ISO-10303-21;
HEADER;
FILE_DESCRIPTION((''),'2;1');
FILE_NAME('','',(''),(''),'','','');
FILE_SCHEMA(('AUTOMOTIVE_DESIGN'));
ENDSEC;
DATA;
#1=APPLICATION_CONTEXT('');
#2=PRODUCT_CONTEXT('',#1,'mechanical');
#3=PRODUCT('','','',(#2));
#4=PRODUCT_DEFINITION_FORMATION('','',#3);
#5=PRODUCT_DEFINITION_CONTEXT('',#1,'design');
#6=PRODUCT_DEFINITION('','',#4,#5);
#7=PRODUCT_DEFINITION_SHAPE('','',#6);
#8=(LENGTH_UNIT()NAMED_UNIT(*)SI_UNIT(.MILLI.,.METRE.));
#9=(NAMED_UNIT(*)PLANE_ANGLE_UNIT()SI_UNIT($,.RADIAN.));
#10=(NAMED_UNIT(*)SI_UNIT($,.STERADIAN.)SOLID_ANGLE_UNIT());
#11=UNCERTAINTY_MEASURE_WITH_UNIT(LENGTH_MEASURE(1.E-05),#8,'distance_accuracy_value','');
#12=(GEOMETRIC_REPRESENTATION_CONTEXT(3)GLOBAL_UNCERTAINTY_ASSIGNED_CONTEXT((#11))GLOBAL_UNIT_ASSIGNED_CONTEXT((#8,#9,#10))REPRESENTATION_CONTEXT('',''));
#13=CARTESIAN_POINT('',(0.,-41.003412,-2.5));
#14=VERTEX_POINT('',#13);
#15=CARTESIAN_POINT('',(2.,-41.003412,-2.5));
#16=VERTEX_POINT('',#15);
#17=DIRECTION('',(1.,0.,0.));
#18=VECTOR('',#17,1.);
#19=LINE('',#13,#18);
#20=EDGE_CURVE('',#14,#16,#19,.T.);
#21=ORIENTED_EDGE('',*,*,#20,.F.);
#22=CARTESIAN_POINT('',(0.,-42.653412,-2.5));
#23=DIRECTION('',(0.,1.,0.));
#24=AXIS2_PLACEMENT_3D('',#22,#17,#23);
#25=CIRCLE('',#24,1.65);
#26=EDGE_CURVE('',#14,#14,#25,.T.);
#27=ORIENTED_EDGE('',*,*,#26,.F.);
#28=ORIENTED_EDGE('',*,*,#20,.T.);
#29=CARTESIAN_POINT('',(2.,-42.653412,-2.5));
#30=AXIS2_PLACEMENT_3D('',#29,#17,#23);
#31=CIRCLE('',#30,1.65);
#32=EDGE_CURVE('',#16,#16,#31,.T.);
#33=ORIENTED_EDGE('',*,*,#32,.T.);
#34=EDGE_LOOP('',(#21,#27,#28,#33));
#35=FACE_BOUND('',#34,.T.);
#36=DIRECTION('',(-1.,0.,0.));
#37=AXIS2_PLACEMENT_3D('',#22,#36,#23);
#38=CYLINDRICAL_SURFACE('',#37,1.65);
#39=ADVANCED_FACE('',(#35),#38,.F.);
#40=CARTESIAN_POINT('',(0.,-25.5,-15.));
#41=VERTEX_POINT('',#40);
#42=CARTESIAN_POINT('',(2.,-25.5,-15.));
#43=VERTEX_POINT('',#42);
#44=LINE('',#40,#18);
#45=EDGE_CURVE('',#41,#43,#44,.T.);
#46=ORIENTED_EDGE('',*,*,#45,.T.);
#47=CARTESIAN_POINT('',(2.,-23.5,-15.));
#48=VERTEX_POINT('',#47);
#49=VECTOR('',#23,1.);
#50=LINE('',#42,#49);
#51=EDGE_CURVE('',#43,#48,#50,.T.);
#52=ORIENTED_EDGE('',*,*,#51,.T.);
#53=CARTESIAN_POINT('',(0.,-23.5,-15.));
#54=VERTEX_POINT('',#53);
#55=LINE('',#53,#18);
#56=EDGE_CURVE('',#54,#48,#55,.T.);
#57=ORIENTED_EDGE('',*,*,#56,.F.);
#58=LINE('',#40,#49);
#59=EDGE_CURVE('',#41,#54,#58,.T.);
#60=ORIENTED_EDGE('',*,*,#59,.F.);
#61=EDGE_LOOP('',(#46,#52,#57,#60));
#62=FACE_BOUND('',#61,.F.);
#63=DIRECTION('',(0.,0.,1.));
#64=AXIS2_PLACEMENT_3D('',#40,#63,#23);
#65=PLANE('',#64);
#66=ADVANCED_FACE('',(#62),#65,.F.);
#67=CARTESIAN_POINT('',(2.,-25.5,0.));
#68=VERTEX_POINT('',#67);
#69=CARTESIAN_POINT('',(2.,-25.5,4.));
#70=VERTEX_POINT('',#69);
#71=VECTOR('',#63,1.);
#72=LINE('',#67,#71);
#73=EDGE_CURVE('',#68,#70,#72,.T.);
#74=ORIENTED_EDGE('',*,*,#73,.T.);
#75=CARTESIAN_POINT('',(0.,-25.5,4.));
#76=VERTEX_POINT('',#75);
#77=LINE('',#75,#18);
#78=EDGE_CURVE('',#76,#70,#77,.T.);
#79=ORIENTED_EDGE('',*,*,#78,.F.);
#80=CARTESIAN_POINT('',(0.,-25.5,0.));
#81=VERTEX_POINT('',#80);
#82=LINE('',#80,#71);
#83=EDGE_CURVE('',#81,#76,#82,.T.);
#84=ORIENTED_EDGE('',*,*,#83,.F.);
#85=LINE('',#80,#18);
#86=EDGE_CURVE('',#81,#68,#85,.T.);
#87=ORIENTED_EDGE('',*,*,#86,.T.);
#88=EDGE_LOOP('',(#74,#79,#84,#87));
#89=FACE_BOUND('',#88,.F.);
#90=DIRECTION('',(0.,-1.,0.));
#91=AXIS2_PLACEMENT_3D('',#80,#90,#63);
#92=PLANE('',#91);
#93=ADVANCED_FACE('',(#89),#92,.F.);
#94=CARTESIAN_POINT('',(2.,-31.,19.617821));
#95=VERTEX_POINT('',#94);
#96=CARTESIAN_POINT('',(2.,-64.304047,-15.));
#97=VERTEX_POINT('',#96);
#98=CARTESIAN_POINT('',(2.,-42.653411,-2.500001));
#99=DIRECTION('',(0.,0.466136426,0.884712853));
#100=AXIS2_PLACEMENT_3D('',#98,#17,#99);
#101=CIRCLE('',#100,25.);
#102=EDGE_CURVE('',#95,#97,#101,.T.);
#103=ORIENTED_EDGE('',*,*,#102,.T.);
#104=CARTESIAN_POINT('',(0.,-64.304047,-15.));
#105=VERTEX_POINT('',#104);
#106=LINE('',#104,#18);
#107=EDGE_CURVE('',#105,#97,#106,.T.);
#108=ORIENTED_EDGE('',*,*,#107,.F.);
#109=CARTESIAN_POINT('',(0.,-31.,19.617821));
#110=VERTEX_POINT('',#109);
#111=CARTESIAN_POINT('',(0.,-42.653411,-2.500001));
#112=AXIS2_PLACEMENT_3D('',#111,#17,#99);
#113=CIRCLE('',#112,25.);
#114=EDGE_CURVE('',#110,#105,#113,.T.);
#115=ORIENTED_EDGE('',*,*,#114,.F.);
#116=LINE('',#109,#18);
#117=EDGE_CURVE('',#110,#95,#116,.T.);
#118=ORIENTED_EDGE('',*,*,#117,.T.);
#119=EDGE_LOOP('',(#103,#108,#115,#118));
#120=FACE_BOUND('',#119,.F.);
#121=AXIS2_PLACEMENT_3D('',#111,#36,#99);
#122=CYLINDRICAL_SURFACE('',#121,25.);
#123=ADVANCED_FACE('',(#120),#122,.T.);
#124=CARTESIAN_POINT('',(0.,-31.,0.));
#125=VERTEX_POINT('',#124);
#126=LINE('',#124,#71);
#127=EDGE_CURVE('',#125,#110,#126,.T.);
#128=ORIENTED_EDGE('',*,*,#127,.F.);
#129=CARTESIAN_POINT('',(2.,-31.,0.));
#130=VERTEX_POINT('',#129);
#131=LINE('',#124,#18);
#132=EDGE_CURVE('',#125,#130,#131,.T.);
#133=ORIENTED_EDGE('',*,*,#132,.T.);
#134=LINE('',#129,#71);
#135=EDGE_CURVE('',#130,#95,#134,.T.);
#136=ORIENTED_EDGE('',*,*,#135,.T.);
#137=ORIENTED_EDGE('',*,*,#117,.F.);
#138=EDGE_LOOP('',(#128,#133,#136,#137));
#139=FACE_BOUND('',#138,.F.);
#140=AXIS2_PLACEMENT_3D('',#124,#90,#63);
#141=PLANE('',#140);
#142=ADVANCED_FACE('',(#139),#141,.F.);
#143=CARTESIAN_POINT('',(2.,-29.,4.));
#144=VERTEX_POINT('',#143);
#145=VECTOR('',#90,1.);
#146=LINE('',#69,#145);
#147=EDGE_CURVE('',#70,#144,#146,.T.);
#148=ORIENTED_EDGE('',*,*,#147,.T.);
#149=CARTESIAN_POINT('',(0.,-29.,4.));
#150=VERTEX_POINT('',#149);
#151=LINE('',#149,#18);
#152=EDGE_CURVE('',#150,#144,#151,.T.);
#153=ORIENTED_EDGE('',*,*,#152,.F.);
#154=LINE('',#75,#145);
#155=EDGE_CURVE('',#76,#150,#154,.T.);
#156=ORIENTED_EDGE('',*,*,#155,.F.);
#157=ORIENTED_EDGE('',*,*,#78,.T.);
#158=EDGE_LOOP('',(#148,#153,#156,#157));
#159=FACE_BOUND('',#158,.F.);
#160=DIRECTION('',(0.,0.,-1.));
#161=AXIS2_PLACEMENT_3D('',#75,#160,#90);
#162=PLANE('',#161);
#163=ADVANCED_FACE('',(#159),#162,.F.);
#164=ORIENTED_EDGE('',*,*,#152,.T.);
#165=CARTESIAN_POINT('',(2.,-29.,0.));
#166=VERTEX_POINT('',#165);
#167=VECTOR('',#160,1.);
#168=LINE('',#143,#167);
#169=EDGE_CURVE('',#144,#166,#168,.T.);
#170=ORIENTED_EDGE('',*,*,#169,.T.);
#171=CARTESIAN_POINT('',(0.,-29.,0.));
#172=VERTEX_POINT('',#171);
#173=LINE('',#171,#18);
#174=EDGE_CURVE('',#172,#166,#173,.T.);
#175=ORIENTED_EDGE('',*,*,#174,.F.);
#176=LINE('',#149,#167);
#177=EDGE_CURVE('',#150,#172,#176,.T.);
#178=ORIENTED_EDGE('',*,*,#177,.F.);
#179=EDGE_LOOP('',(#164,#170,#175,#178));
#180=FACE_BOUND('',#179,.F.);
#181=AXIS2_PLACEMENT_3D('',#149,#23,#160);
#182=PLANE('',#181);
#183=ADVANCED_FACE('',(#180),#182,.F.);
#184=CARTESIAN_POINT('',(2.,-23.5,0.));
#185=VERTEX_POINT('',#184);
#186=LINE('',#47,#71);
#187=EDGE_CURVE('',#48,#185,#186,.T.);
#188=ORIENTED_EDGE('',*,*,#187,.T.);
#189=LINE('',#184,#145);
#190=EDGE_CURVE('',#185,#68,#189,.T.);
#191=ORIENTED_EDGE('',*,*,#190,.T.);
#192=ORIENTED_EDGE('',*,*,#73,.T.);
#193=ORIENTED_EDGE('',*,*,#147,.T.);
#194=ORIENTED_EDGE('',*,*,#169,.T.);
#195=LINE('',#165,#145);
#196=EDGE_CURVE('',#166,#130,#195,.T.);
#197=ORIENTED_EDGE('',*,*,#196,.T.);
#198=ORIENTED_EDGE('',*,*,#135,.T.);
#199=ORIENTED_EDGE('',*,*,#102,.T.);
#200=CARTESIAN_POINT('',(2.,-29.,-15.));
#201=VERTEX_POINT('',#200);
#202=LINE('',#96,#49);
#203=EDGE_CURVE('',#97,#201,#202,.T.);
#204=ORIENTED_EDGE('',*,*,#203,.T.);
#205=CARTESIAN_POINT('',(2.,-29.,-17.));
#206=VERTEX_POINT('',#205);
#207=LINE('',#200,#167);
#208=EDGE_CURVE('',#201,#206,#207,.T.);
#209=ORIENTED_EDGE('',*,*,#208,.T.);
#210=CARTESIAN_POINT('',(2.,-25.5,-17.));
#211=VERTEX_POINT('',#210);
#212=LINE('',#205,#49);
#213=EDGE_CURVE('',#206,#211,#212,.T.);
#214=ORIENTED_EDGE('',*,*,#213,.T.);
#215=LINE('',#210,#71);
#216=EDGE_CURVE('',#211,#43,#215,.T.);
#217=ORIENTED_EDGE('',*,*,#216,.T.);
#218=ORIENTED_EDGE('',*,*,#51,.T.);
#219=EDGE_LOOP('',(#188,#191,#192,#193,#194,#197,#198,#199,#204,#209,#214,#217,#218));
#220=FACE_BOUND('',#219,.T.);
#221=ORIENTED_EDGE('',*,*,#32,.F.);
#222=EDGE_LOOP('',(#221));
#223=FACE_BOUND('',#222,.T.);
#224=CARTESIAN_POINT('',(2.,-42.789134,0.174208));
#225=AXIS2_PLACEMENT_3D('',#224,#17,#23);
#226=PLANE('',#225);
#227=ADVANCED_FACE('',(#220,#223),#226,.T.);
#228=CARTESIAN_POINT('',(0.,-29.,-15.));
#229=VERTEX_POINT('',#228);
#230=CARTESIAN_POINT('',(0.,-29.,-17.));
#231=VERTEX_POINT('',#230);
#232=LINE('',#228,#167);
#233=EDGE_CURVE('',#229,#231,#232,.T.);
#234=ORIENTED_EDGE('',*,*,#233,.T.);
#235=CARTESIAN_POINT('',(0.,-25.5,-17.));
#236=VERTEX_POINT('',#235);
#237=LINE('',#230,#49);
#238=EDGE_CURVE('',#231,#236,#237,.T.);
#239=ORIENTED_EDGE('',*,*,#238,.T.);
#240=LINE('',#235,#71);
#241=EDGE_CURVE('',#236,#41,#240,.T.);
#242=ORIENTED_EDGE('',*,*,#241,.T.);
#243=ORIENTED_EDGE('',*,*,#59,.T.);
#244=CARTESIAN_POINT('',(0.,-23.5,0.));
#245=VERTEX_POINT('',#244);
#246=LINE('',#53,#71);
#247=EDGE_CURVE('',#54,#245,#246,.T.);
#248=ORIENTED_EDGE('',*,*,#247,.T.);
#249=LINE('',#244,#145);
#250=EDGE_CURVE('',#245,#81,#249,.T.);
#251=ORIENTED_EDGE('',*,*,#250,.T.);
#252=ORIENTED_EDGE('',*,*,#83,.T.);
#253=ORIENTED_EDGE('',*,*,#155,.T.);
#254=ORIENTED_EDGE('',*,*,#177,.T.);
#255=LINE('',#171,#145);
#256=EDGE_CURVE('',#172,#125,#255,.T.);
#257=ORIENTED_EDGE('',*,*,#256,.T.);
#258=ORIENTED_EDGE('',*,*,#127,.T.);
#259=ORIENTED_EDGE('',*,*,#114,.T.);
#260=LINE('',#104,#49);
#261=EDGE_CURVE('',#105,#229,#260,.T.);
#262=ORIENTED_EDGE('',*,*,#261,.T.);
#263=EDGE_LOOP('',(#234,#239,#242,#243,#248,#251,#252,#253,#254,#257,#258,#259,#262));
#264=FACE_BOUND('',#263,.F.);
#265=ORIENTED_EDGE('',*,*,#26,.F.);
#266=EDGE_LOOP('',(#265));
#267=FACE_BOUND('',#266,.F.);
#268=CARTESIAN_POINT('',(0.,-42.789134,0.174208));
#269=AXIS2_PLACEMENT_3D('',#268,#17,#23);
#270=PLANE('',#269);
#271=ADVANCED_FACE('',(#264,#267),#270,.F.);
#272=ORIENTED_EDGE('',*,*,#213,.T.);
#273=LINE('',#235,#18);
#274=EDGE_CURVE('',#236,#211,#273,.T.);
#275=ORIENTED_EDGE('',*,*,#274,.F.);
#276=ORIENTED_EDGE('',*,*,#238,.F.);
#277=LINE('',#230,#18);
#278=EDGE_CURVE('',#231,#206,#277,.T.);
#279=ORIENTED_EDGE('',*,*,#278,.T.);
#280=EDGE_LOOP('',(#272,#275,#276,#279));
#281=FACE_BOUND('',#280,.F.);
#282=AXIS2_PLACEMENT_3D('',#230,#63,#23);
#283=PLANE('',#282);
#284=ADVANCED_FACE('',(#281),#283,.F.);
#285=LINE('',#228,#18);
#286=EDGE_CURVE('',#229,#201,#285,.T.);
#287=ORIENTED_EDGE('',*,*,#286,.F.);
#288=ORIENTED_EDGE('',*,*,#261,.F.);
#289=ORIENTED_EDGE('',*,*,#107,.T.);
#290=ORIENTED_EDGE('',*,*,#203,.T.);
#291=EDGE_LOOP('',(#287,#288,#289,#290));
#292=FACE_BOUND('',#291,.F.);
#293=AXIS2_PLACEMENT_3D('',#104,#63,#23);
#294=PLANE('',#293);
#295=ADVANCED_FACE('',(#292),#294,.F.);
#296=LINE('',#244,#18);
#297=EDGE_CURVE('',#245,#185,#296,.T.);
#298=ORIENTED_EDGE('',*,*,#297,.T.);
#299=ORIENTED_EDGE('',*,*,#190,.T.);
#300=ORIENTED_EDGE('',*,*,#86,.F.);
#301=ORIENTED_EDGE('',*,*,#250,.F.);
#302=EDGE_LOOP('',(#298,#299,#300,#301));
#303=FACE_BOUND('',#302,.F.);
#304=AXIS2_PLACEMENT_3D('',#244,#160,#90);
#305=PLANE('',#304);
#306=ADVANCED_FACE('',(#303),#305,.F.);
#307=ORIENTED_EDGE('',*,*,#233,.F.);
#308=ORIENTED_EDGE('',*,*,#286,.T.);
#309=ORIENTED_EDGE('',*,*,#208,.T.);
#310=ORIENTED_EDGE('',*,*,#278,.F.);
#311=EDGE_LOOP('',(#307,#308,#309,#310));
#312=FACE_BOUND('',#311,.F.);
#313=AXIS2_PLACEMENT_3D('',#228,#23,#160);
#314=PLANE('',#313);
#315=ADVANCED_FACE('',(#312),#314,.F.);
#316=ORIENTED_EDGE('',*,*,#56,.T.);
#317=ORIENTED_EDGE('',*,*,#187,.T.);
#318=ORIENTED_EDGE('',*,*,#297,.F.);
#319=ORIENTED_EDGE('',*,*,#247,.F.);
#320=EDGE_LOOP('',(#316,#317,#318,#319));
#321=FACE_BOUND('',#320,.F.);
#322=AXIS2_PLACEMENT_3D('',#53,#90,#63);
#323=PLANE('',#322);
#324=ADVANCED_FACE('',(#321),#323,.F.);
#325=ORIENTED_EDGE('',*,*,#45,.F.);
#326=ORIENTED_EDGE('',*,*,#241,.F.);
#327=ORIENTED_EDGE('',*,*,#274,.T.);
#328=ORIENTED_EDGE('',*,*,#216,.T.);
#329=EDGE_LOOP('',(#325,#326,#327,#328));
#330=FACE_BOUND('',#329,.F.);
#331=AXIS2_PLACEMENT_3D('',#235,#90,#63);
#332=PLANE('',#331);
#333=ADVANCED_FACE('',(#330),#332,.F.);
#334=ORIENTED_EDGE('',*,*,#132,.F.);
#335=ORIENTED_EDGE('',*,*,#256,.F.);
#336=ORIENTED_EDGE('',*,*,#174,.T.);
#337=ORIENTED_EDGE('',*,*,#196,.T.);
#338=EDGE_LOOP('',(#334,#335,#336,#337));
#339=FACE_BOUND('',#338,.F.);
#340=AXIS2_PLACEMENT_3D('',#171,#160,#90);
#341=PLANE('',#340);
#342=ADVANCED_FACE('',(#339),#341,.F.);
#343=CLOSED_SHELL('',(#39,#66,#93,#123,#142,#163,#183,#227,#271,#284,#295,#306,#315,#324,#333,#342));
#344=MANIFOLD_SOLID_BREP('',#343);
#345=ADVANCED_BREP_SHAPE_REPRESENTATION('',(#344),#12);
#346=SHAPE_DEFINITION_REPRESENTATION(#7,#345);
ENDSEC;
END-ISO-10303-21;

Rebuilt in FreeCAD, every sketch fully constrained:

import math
import FreeCAD as App
import Part
import Sketcher
from FreeCAD import Vector
Q = App.Units.Quantity

doc = App.newDocument("Part")
body = doc.addObject("PartDesign::Body", "Body")

# Sketch on YZ plane
sketch1 = doc.addObject("Sketcher::SketchObject", "Sketch")
body.addObject(sketch1)
sketch1.AttachmentSupport = (doc.YZ_Plane, [""])
sketch1.MapMode = "FlatFace"
sketch1.addGeometry([
    Part.LineSegment(Vector(-29, 0, 0), Vector(-31, 0, 0)),  # 0
    Part.LineSegment(Vector(-31, 0, 0), Vector(-31, 19.617821, 0)),  # 1
    Part.ArcOfCircle(Part.Circle(Vector(-42.653411, -2.500001, 0), Vector(0, 0, 1), 25), math.radians(62.216206), math.radians(209.999997)),  # 2
    Part.LineSegment(Vector(-64.304047, -15, 0), Vector(-29, -15, 0)),  # 3
    Part.LineSegment(Vector(-29, -15, 0), Vector(-29, -17, 0)),  # 4
    Part.LineSegment(Vector(-29, -17, 0), Vector(-25.5, -17, 0)),  # 5
    Part.LineSegment(Vector(-25.5, -17, 0), Vector(-25.5, -15, 0)),  # 6
    Part.LineSegment(Vector(-25.5, -15, 0), Vector(-23.5, -15, 0)),  # 7
    Part.LineSegment(Vector(-23.5, -15, 0), Vector(-23.5, 0, 0)),  # 8
    Part.LineSegment(Vector(-23.5, 0, 0), Vector(-25.5, 0, 0)),  # 9
    Part.LineSegment(Vector(-25.5, 0, 0), Vector(-25.5, 4, 0)),  # 10
    Part.LineSegment(Vector(-25.5, 4, 0), Vector(-29, 4, 0)),  # 11
    Part.LineSegment(Vector(-29, 4, 0), Vector(-29, 0, 0)),  # 12
    Part.Circle(Vector(-42.653412, -2.5, 0), Vector(0, 0, 1), 1.65),  # 13
], False)
sketch1.addConstraint([
    Sketcher.Constraint("Coincident", 0, 2, 1, 1),
    Sketcher.Constraint("Coincident", 1, 2, 2, 1),
    Sketcher.Constraint("Coincident", 2, 2, 3, 1),
    Sketcher.Constraint("Coincident", 3, 2, 4, 1),
    Sketcher.Constraint("Coincident", 4, 2, 5, 1),
    Sketcher.Constraint("Coincident", 5, 2, 6, 1),
    Sketcher.Constraint("Coincident", 6, 2, 7, 1),
    Sketcher.Constraint("Coincident", 7, 2, 8, 1),
    Sketcher.Constraint("Coincident", 8, 2, 9, 1),
    Sketcher.Constraint("Coincident", 9, 2, 10, 1),
    Sketcher.Constraint("Coincident", 10, 2, 11, 1),
    Sketcher.Constraint("Coincident", 11, 2, 12, 1),
    Sketcher.Constraint("Coincident", 12, 2, 0, 1),
    Sketcher.Constraint("Horizontal", 0),
    Sketcher.Constraint("Vertical", 1),
    Sketcher.Constraint("Horizontal", 3),
    Sketcher.Constraint("Vertical", 4),
    Sketcher.Constraint("Horizontal", 5),
    Sketcher.Constraint("Vertical", 6),
    Sketcher.Constraint("Horizontal", 7),
    Sketcher.Constraint("Vertical", 8),
    Sketcher.Constraint("Horizontal", 9),
    Sketcher.Constraint("Vertical", 10),
    Sketcher.Constraint("Horizontal", 11),
    Sketcher.Constraint("Vertical", 12),
    Sketcher.Constraint("Coincident", 13, 3, 2, 3),
    Sketcher.Constraint("PointOnObject", 0, 2, -1),
    Sketcher.Constraint("PointOnObject", 8, 2, -1),
    Sketcher.Constraint("Horizontal", 3, 2, 6, 2),
    Sketcher.Constraint("Vertical", 6, 2, 9, 2),
    Sketcher.Constraint("Vertical", 4, 2, 11, 2),
    Sketcher.Constraint("Equal", 0, 7),
    Sketcher.Constraint("Equal", 9, 4),
    Sketcher.Constraint("Radius", 2, Q("25 mm")),
    Sketcher.Constraint("Diameter", 13, Q("3.3 mm")),
    Sketcher.Constraint("DistanceX", 0, 2, 0, 1, Q("2 mm")),
    Sketcher.Constraint("DistanceY", 8, 1, 8, 2, Q("15 mm")),
    Sketcher.Constraint("DistanceY", 10, 1, 10, 2, Q("4 mm")),
    Sketcher.Constraint("DistanceX", 5, 1, 5, 2, Q("3.5 mm")),
    Sketcher.Constraint("DistanceX", 0, 2, -1, 1, Q("31 mm")),
    Sketcher.Constraint("DistanceY", 2, 3, -1, 1, Q("2.500001 mm")),
    Sketcher.Constraint("DistanceY", 1, 1, 1, 2, Q("19.617821 mm")),
])
pad1 = doc.addObject("PartDesign::Pad", "Pad")
body.addObject(pad1)
pad1.Profile = sketch1
pad1.Length = 2

doc.recompute()
